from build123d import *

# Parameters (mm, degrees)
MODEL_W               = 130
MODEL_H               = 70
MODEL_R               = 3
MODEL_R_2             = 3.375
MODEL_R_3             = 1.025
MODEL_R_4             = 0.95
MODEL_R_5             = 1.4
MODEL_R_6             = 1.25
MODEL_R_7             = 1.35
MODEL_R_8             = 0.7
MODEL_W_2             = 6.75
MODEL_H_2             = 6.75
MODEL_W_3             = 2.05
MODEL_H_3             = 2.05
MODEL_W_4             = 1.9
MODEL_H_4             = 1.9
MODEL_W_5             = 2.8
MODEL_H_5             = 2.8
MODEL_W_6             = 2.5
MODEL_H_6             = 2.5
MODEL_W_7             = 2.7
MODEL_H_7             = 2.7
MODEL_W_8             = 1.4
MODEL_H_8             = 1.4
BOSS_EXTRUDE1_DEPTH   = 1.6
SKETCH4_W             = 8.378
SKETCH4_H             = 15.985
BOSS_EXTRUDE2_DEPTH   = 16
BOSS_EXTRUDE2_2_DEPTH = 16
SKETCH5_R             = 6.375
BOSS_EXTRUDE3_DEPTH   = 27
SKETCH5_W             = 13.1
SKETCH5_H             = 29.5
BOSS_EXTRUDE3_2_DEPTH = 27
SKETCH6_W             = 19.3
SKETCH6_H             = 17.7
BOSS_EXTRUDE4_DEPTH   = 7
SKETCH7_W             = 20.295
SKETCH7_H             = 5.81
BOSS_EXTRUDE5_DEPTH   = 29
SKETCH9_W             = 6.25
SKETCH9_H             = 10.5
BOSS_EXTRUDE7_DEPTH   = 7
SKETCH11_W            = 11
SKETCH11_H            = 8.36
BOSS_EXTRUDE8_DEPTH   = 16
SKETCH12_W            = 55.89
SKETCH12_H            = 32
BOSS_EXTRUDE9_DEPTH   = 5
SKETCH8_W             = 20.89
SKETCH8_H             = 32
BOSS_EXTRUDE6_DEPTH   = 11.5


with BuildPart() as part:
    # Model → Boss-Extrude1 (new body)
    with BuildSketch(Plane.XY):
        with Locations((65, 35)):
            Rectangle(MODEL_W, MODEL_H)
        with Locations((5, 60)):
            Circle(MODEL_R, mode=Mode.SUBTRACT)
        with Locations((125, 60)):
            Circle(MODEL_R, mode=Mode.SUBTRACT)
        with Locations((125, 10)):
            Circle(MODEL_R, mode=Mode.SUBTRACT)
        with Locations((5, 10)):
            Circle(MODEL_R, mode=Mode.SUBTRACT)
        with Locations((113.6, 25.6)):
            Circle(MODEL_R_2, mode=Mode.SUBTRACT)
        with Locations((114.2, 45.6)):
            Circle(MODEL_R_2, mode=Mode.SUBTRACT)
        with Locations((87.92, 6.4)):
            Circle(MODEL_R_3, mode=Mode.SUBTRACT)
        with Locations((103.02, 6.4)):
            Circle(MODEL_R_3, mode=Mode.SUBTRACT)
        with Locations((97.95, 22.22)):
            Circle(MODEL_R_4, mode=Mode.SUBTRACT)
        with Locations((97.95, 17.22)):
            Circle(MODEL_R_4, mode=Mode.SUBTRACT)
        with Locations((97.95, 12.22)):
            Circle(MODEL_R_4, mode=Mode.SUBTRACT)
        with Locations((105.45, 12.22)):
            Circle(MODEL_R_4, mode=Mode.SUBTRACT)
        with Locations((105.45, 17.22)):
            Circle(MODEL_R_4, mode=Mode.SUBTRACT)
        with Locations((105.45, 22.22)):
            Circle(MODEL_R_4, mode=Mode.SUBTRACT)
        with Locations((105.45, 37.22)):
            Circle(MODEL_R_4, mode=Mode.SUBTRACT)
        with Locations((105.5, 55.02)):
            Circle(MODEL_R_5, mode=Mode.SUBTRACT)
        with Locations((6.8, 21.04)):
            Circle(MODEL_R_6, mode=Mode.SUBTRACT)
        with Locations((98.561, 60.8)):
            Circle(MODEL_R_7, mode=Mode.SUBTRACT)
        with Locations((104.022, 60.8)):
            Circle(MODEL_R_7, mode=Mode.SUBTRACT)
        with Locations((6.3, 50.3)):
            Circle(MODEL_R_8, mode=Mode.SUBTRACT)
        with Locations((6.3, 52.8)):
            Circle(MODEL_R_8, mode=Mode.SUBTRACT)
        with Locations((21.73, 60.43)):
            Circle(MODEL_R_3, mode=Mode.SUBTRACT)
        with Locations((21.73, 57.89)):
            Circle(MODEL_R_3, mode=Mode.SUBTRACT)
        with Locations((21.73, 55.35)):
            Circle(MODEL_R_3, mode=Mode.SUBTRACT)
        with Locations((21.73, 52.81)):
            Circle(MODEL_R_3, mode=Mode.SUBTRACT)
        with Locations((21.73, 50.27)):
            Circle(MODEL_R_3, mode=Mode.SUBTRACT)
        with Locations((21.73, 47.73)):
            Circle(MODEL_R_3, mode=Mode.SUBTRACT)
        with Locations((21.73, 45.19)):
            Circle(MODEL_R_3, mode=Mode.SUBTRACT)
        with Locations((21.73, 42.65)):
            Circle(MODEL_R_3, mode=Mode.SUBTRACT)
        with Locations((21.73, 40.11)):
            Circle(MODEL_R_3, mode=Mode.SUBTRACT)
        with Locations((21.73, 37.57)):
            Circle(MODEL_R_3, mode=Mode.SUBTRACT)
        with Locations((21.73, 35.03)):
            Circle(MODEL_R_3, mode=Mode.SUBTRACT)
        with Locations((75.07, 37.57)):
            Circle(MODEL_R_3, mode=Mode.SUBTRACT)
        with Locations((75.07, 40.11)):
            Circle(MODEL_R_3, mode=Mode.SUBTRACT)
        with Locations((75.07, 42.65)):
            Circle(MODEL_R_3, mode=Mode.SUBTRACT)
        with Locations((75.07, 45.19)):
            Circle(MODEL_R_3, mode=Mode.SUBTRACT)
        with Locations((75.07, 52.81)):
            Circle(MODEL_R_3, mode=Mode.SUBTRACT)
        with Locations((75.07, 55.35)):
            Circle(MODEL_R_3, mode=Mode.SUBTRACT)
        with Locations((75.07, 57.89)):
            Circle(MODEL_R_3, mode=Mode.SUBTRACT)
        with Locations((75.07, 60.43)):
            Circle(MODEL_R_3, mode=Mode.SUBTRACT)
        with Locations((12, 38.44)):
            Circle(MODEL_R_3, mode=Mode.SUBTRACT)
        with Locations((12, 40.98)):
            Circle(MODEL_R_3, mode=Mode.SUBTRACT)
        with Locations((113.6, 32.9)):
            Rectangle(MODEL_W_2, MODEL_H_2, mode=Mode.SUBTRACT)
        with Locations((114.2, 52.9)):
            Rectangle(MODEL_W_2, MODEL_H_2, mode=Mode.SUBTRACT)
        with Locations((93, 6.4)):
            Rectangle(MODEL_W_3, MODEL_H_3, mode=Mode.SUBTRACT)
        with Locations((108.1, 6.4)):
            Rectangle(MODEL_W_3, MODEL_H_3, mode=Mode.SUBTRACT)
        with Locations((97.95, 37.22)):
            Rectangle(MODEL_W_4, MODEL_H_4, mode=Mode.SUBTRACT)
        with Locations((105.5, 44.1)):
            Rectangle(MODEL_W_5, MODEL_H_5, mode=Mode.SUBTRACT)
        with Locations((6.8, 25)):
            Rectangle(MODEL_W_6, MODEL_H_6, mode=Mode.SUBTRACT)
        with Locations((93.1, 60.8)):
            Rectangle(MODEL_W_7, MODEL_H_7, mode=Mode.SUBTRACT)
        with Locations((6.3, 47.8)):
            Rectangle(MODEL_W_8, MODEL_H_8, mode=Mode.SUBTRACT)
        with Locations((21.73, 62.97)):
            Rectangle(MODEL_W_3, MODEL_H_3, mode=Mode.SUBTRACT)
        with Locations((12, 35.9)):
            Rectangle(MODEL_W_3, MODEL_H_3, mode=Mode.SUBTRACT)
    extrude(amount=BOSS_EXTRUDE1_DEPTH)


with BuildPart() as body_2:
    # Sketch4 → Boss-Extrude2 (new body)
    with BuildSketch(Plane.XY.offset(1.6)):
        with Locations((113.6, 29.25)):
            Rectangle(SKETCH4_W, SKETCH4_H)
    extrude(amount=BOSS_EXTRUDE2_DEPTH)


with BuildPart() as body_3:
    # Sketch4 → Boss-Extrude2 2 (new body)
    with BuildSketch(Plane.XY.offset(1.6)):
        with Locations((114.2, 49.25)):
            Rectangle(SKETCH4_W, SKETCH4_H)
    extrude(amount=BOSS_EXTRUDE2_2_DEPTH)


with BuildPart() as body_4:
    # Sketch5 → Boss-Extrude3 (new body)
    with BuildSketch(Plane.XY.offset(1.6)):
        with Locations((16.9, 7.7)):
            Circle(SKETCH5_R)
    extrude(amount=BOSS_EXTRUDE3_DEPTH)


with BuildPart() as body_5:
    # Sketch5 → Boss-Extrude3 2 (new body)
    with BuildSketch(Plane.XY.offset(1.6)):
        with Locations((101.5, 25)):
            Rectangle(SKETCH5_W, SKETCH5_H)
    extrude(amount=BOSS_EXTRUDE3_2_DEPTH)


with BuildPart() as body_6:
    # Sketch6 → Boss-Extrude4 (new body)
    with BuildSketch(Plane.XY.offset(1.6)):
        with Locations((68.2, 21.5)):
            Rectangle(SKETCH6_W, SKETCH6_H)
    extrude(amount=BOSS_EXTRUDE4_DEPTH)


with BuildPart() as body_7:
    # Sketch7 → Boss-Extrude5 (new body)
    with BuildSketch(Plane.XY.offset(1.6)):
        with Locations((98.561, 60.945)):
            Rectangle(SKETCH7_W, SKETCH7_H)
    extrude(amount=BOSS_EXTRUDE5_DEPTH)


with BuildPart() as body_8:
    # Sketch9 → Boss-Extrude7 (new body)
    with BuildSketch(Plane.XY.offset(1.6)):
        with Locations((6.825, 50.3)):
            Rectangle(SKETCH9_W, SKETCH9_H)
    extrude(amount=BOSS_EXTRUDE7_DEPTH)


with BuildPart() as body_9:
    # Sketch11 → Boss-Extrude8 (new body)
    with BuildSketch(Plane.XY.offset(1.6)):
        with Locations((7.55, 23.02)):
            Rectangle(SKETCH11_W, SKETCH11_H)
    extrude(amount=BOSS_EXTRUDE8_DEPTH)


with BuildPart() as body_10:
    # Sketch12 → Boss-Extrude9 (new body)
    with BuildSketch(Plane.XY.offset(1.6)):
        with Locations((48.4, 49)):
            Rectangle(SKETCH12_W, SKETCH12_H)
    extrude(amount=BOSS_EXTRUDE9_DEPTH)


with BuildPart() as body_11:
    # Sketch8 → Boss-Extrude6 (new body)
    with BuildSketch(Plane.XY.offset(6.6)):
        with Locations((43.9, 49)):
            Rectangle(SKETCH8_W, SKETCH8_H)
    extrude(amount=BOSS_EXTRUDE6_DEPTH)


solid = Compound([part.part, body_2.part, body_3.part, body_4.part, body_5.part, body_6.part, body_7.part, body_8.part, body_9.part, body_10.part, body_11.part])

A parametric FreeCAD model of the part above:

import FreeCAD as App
import Part
import Sketcher

V = App.Vector

doc = App.newDocument("Part")
body = doc.addObject("PartDesign::Body", "Body")

sketch1 = doc.addObject("Sketcher::SketchObject", "Sketch")
body.addObject(sketch1)
sketch1.AttachmentSupport = (doc.XY_Plane, [""])
sketch1.MapMode = "FlatFace"
sketch1.addGeometry([
    Part.LineSegment(V(0, 70, 0), V(0, 0, 0)),
    Part.LineSegment(V(0, 0, 0), V(130, 0, 0)),
    Part.LineSegment(V(130, 0, 0), V(130, 70, 0)),
    Part.LineSegment(V(130, 70, 0), V(0, 70, 0)),
    Part.Circle(V(5, 10, 0), V(0, 0, 1), 3),
    Part.Circle(V(6.8, 21, 0), V(0, 0, 1), 1.2),
    Part.LineSegment(V(8.1, 23.8, 0), V(5.5, 23.8, 0)),
    Part.LineSegment(V(5.5, 23.8, 0), V(5.5, 26.2, 0)),
    Part.LineSegment(V(5.5, 26.2, 0), V(8.1, 26.2, 0)),
    Part.LineSegment(V(8.1, 26.2, 0), V(8.1, 23.8, 0)),
    Part.Circle(V(87.9, 6.4, 0), V(0, 0, 1), 1),
    Part.LineSegment(V(94, 5.4, 0), V(92, 5.4, 0)),
    Part.LineSegment(V(92, 5.4, 0), V(92, 7.4, 0)),
    Part.LineSegment(V(92, 7.4, 0), V(94, 7.4, 0)),
    Part.LineSegment(V(94, 7.4, 0), V(94, 5.4, 0)),
    Part.Circle(V(103, 6.4, 0), V(0, 0, 1), 1),
    Part.LineSegment(V(109.1, 5.4, 0), V(107.1, 5.4, 0)),
    Part.LineSegment(V(107.1, 5.4, 0), V(107.1, 7.4, 0)),
    Part.LineSegment(V(107.1, 7.4, 0), V(109.1, 7.4, 0)),
    Part.LineSegment(V(109.1, 7.4, 0), V(109.1, 5.4, 0)),
    Part.Circle(V(98, 12.2, 0), V(0, 0, 1), 0.9),
    Part.Circle(V(105.5, 12.2, 0), V(0, 0, 1), 0.9),
    Part.Circle(V(125, 10, 0), V(0, 0, 1), 3),
    Part.Circle(V(98, 17.2, 0), V(0, 0, 1), 0.9),
    Part.Circle(V(105.5, 17.2, 0), V(0, 0, 1), 0.9),
    Part.Circle(V(98, 22.2, 0), V(0, 0, 1), 0.9),
    Part.Circle(V(105.5, 22.2, 0), V(0, 0, 1), 0.9),
    Part.Circle(V(113.6, 25.6, 0), V(0, 0, 1), 3.4),
    Part.LineSegment(V(117, 29.5, 0), V(110.2, 29.5, 0)),
    Part.LineSegment(V(110.2, 29.5, 0), V(110.2, 36.3, 0)),
    Part.LineSegment(V(110.2, 36.3, 0), V(117, 36.3, 0)),
    Part.LineSegment(V(117, 36.3, 0), V(117, 29.5, 0)),
    Part.LineSegment(V(13, 34.9, 0), V(11, 34.9, 0)),
    Part.LineSegment(V(11, 34.9, 0), V(11, 36.9, 0)),
    Part.LineSegment(V(11, 36.9, 0), V(13, 36.9, 0)),
    Part.LineSegment(V(13, 36.9, 0), V(13, 34.9, 0)),
    Part.Circle(V(12, 38.4, 0), V(0, 0, 1), 1),
    Part.Circle(V(12, 41, 0), V(0, 0, 1), 1),
    Part.Circle(V(21.7, 35, 0), V(0, 0, 1), 1),
    Part.Circle(V(21.7, 37.6, 0), V(0, 0, 1), 1),
    Part.Circle(V(21.7, 40.1, 0), V(0, 0, 1), 1),
    Part.LineSegment(V(7, 47.1, 0), V(5.6, 47.1, 0)),
    Part.LineSegment(V(5.6, 47.1, 0), V(5.6, 48.5, 0)),
    Part.LineSegment(V(5.6, 48.5, 0), V(7, 48.5, 0)),
    Part.LineSegment(V(7, 48.5, 0), V(7, 47.1, 0)),
    Part.Circle(V(21.7, 42.6, 0), V(0, 0, 1), 1),
    Part.Circle(V(21.7, 45.2, 0), V(0, 0, 1), 1),
    Part.Circle(V(21.7, 47.7, 0), V(0, 0, 1), 1),
    Part.Circle(V(6.3, 50.3, 0), V(0, 0, 1), 0.7),
    Part.Circle(V(6.3, 52.8, 0), V(0, 0, 1), 0.7),
    Part.Circle(V(21.7, 50.3, 0), V(0, 0, 1), 1),
    Part.Circle(V(21.7, 52.8, 0), V(0, 0, 1), 1),
    Part.Circle(V(21.7, 55.4, 0), V(0, 0, 1), 1),
    Part.Circle(V(5, 60, 0), V(0, 0, 1), 3),
    Part.Circle(V(21.7, 57.9, 0), V(0, 0, 1), 1),
    Part.Circle(V(21.7, 60.4, 0), V(0, 0, 1), 1),
    Part.LineSegment(V(22.8, 61.9, 0), V(20.7, 61.9, 0)),
    Part.LineSegment(V(20.7, 61.9, 0), V(20.7, 64, 0)),
    Part.LineSegment(V(20.7, 64, 0), V(22.8, 64, 0)),
    Part.LineSegment(V(22.8, 64, 0), V(22.8, 61.9, 0)),
    Part.Circle(V(75.1, 37.6, 0), V(0, 0, 1), 1),
    Part.Circle(V(75.1, 40.1, 0), V(0, 0, 1), 1),
    Part.Circle(V(75.1, 42.6, 0), V(0, 0, 1), 1),
    Part.Circle(V(75.1, 45.2, 0), V(0, 0, 1), 1),
    Part.LineSegment(V(98.9, 36.3, 0), V(97, 36.3, 0)),
    Part.LineSegment(V(97, 36.3, 0), V(97, 38.2, 0)),
    Part.LineSegment(V(97, 38.2, 0), V(98.9, 38.2, 0)),
    Part.LineSegment(V(98.9, 38.2, 0), V(98.9, 36.3, 0)),
    Part.Circle(V(105.5, 37.2, 0), V(0, 0, 1), 0.9),
    Part.LineSegment(V(106.9, 42.7, 0), V(104.1, 42.7, 0)),
    Part.LineSegment(V(104.1, 42.7, 0), V(104.1, 45.5, 0)),
    Part.LineSegment(V(104.1, 45.5, 0), V(106.9, 45.5, 0)),
    Part.LineSegment(V(106.9, 45.5, 0), V(106.9, 42.7, 0)),
    Part.Circle(V(114.2, 45.6, 0), V(0, 0, 1), 3.4),
    Part.Circle(V(75.1, 52.8, 0), V(0, 0, 1), 1),
    Part.Circle(V(75.1, 55.4, 0), V(0, 0, 1), 1),
    Part.Circle(V(75.1, 57.9, 0), V(0, 0, 1), 1),
    Part.Circle(V(75.1, 60.4, 0), V(0, 0, 1), 1),
    Part.LineSegment(V(94.5, 59.5, 0), V(91.8, 59.5, 0)),
    Part.LineSegment(V(91.8, 59.5, 0), V(91.8, 62.1, 0)),
    Part.LineSegment(V(91.8, 62.1, 0), V(94.5, 62.1, 0)),
    Part.LineSegment(V(94.5, 62.1, 0), V(94.5, 59.5, 0)),
    Part.Circle(V(105.5, 55, 0), V(0, 0, 1), 1.4),
    Part.LineSegment(V(117.6, 49.5, 0), V(110.8, 49.5, 0)),
    Part.LineSegment(V(110.8, 49.5, 0), V(110.8, 56.3, 0)),
    Part.LineSegment(V(110.8, 56.3, 0), V(117.6, 56.3, 0)),
    Part.LineSegment(V(117.6, 56.3, 0), V(117.6, 49.5, 0)),
    Part.Circle(V(98.6, 60.8, 0), V(0, 0, 1), 1.4),
    Part.Circle(V(104, 60.8, 0), V(0, 0, 1), 1.4),
    Part.Circle(V(125, 60, 0), V(0, 0, 1), 3),
], False)
sketch1.addConstraint([
    Sketcher.Constraint("Coincident", 0, 2, 1, 1),
    Sketcher.Constraint("Coincident", 1, 2, 2, 1),
    Sketcher.Constraint("Coincident", 2, 2, 3, 1),
    Sketcher.Constraint("Coincident", 3, 2, 0, 1),
    Sketcher.Constraint("Coincident", 6, 2, 7, 1),
    Sketcher.Constraint("Coincident", 7, 2, 8, 1),
    Sketcher.Constraint("Coincident", 8, 2, 9, 1),
    Sketcher.Constraint("Coincident", 9, 2, 6, 1),
    Sketcher.Constraint("Coincident", 11, 2, 12, 1),
    Sketcher.Constraint("Coincident", 12, 2, 13, 1),
    Sketcher.Constraint("Coincident", 13, 2, 14, 1),
    Sketcher.Constraint("Coincident", 14, 2, 11, 1),
    Sketcher.Constraint("Coincident", 16, 2, 17, 1),
    Sketcher.Constraint("Coincident", 17, 2, 18, 1),
    Sketcher.Constraint("Coincident", 18, 2, 19, 1),
    Sketcher.Constraint("Coincident", 19, 2, 16, 1),
    Sketcher.Constraint("Coincident", 28, 2, 29, 1),
    Sketcher.Constraint("Coincident", 29, 2, 30, 1),
    Sketcher.Constraint("Coincident", 30, 2, 31, 1),
    Sketcher.Constraint("Coincident", 31, 2, 28, 1),
    Sketcher.Constraint("Coincident", 32, 2, 33, 1),
    Sketcher.Constraint("Coincident", 33, 2, 34, 1),
    Sketcher.Constraint("Coincident", 34, 2, 35, 1),
    Sketcher.Constraint("Coincident", 35, 2, 32, 1),
    Sketcher.Constraint("Coincident", 41, 2, 42, 1),
    Sketcher.Constraint("Coincident", 42, 2, 43, 1),
    Sketcher.Constraint("Coincident", 43, 2, 44, 1),
    Sketcher.Constraint("Coincident", 44, 2, 41, 1),
    Sketcher.Constraint("Coincident", 56, 2, 57, 1),
    Sketcher.Constraint("Coincident", 57, 2, 58, 1),
    Sketcher.Constraint("Coincident", 58, 2, 59, 1),
    Sketcher.Constraint("Coincident", 59, 2, 56, 1),
    Sketcher.Constraint("Coincident", 64, 2, 65, 1),
    Sketcher.Constraint("Coincident", 65, 2, 66, 1),
    Sketcher.Constraint("Coincident", 66, 2, 67, 1),
    Sketcher.Constraint("Coincident", 67, 2, 64, 1),
    Sketcher.Constraint("Coincident", 69, 2, 70, 1),
    Sketcher.Constraint("Coincident", 70, 2, 71, 1),
    Sketcher.Constraint("Coincident", 71, 2, 72, 1),
    Sketcher.Constraint("Coincident", 72, 2, 69, 1),
    Sketcher.Constraint("Coincident", 78, 2, 79, 1),
    Sketcher.Constraint("Coincident", 79, 2, 80, 1),
    Sketcher.Constraint("Coincident", 80, 2, 81, 1),
    Sketcher.Constraint("Coincident", 81, 2, 78, 1),
    Sketcher.Constraint("Coincident", 83, 2, 84, 1),
    Sketcher.Constraint("Coincident", 84, 2, 85, 1),
    Sketcher.Constraint("Coincident", 85, 2, 86, 1),
    Sketcher.Constraint("Coincident", 86, 2, 83, 1),
    Sketcher.Constraint("Vertical", 0),
    Sketcher.Constraint("Horizontal", 1),
    Sketcher.Constraint("Vertical", 2),
    Sketcher.Constraint("Horizontal", 3),
    Sketcher.Constraint("Horizontal", 6),
    Sketcher.Constraint("Vertical", 7),
    Sketcher.Constraint("Horizontal", 8),
    Sketcher.Constraint("Vertical", 9),
    Sketcher.Constraint("Horizontal", 11),
    Sketcher.Constraint("Vertical", 12),
    Sketcher.Constraint("Horizontal", 13),
    Sketcher.Constraint("Vertical", 14),
    Sketcher.Constraint("Horizontal", 16),
    Sketcher.Constraint("Vertical", 17),
    Sketcher.Constraint("Horizontal", 18),
    Sketcher.Constraint("Vertical", 19),
    Sketcher.Constraint("Horizontal", 28),
    Sketcher.Constraint("Vertical", 29),
    Sketcher.Constraint("Horizontal", 30),
    Sketcher.Constraint("Vertical", 31),
    Sketcher.Constraint("Horizontal", 32),
    Sketcher.Constraint("Vertical", 33),
    Sketcher.Constraint("Horizontal", 34),
    Sketcher.Constraint("Vertical", 35),
    Sketcher.Constraint("Horizontal", 41),
    Sketcher.Constraint("Vertical", 42),
    Sketcher.Constraint("Horizontal", 43),
    Sketcher.Constraint("Vertical", 44),
    Sketcher.Constraint("Horizontal", 56),
    Sketcher.Constraint("Vertical", 57),
    Sketcher.Constraint("Horizontal", 58),
    Sketcher.Constraint("Vertical", 59),
    Sketcher.Constraint("Horizontal", 64),
    Sketcher.Constraint("Vertical", 65),
    Sketcher.Constraint("Horizontal", 66),
    Sketcher.Constraint("Vertical", 67),
    Sketcher.Constraint("Horizontal", 69),
    Sketcher.Constraint("Vertical", 70),
    Sketcher.Constraint("Horizontal", 71),
    Sketcher.Constraint("Vertical", 72),
    Sketcher.Constraint("Horizontal", 78),
    Sketcher.Constraint("Vertical", 79),
    Sketcher.Constraint("Horizontal", 80),
    Sketcher.Constraint("Vertical", 81),
    Sketcher.Constraint("Horizontal", 83),
    Sketcher.Constraint("Vertical", 84),
    Sketcher.Constraint("Horizontal", 85),
    Sketcher.Constraint("Vertical", 86),
    Sketcher.Constraint("Coincident", 0, 2, -1, 1),
    Sketcher.Constraint("Equal", 10, 15),
    Sketcher.Constraint("Equal", 20, 21),
    Sketcher.Constraint("Equal", 4, 22),
    Sketcher.Constraint("Equal", 21, 23),
    Sketcher.Constraint("Equal", 23, 24),
    Sketcher.Constraint("Equal", 24, 25),
    Sketcher.Constraint("Equal", 25, 26),
    Sketcher.Constraint("Equal", 15, 36),
    Sketcher.Constraint("Equal", 36, 37),
    Sketcher.Constraint("Equal", 37, 38),
    Sketcher.Constraint("Equal", 38, 39),
    Sketcher.Constraint("Equal", 39, 40),
    Sketcher.Constraint("Equal", 40, 45),
    Sketcher.Constraint("Equal", 45, 46),
    Sketcher.Constraint("Equal", 46, 47),
    Sketcher.Constraint("Equal", 48, 49),
    Sketcher.Constraint("Equal", 47, 50),
    Sketcher.Constraint("Equal", 50, 51),
    Sketcher.Constraint("Equal", 51, 52),
    Sketcher.Constraint("Equal", 22, 53),
    Sketcher.Constraint("Equal", 52, 54),
    Sketcher.Constraint("Equal", 54, 55),
    Sketcher.Constraint("Equal", 55, 60),
    Sketcher.Constraint("Equal", 60, 61),
    Sketcher.Constraint("Equal", 61, 62),
    Sketcher.Constraint("Equal", 62, 63),
    Sketcher.Constraint("Equal", 26, 68),
    Sketcher.Constraint("Equal", 27, 73),
    Sketcher.Constraint("Equal", 63, 74),
    Sketcher.Constraint("Equal", 74, 75),
    Sketcher.Constraint("Equal", 75, 76),
    Sketcher.Constraint("Equal", 76, 77),
    Sketcher.Constraint("Equal", 87, 88),
    Sketcher.Constraint("Equal", 53, 89),
    Sketcher.Constraint("Horizontal", 10, 3, 15, 3),
    Sketcher.Constraint("Horizontal", 20, 3, 21, 3),
    Sketcher.Constraint("Horizontal", 4, 3, 22, 3),
    Sketcher.Constraint("Horizontal", 23, 3, 24, 3),
    Sketcher.Constraint("Horizontal", 25, 3, 26, 3),
    Sketcher.Constraint("Horizontal", 39, 3, 60, 3),
    Sketcher.Constraint("Horizontal", 40, 3, 61, 3),
    Sketcher.Constraint("Horizontal", 45, 3, 62, 3),
    Sketcher.Constraint("Horizontal", 46, 3, 63, 3),
    Sketcher.Constraint("Horizontal", 51, 3, 74, 3),
    Sketcher.Constraint("Horizontal", 52, 3, 75, 3),
    Sketcher.Constraint("Horizontal", 54, 3, 76, 3),
    Sketcher.Constraint("Horizontal", 55, 3, 77, 3),
    Sketcher.Constraint("Horizontal", 87, 3, 88, 3),
    Sketcher.Constraint("Horizontal", 53, 3, 89, 3),
    Sketcher.Constraint("Horizontal", 14, 2, 16, 2),
    Sketcher.Constraint("Horizontal", 13, 2, 17, 2),
    Sketcher.Constraint("Vertical", 20, 3, 23, 3),
    Sketcher.Constraint("Vertical", 21, 3, 24, 3),
    Sketcher.Constraint("Vertical", 23, 3, 25, 3),
    Sketcher.Constraint("Vertical", 24, 3, 26, 3),
    Sketcher.Constraint("Vertical", 36, 3, 37, 3),
    Sketcher.Constraint("Vertical", 38, 3, 39, 3),
    Sketcher.Constraint("Vertical", 39, 3, 40, 3),
    Sketcher.Constraint("Vertical", 40, 3, 45, 3),
    Sketcher.Constraint("Vertical", 45, 3, 46, 3),
    Sketcher.Constraint("Vertical", 46, 3, 47, 3),
    Sketcher.Constraint("Vertical", 48, 3, 49, 3),
    Sketcher.Constraint("Vertical", 47, 3, 50, 3),
    Sketcher.Constraint("Vertical", 50, 3, 51, 3),
    Sketcher.Constraint("Vertical", 51, 3, 52, 3),
    Sketcher.Constraint("Vertical", 4, 3, 53, 3),
    Sketcher.Constraint("Vertical", 52, 3, 54, 3),
    Sketcher.Constraint("Vertical", 54, 3, 55, 3),
    Sketcher.Constraint("Vertical", 60, 3, 61, 3),
    Sketcher.Constraint("Vertical", 61, 3, 62, 3),
    Sketcher.Constraint("Vertical", 62, 3, 63, 3),
    Sketcher.Constraint("Vertical", 26, 3, 68, 3),
    Sketcher.Constraint("Vertical", 63, 3, 74, 3),
    Sketcher.Constraint("Vertical", 74, 3, 75, 3),
    Sketcher.Constraint("Vertical", 75, 3, 76, 3),
    Sketcher.Constraint("Vertical", 76, 3, 77, 3),
    Sketcher.Constraint("Vertical", 22, 3, 89, 3),
    Sketcher.Constraint("Equal", 13, 16),
    Sketcher.Constraint("Equal", 18, 32),
    Sketcher.Constraint("Equal", 34, 56),
    Sketcher.Constraint("Equal", 30, 83),
    Sketcher.Constraint("Equal", 8, 7),
    Sketcher.Constraint("Equal", 58, 12),
    Sketcher.Constraint("Equal", 85, 29),
    Sketcher.Constraint("Equal", 19, 33),
    Sketcher.Constraint("Equal", 43, 42),
    Sketcher.Constraint("Equal", 35, 57),
    Sketcher.Constraint("Equal", 66, 65),
    Sketcher.Constraint("Equal", 71, 70),
    Sketcher.Constraint("Equal", 80, 79),
    Sketcher.Constraint("Equal", 31, 84),
    Sketcher.Constraint("Diameter", 4, 6.0),
    Sketcher.Constraint("Diameter", 5, 2.5),
    Sketcher.Constraint("Diameter", 20, 1.9),
    Sketcher.Constraint("Diameter", 48, 1.4),
    Sketcher.Constraint("Diameter", 82, 2.8),
    Sketcher.Constraint("Diameter", 87, 2.7),
    Sketcher.Constraint("Diameter", 10, 2.05),
    Sketcher.Constraint("Diameter", 27, 6.75),
    Sketcher.Constraint("DistanceX", 1, 1, 1, 2, 130.0),
    Sketcher.Constraint("DistanceY", 0, 2, 0, 1, 70.0),
    Sketcher.Constraint("DistanceX", 6, 2, 6, 1, 2.5),
    Sketcher.Constraint("DistanceX", 41, 2, 41, 1, 1.4),
    Sketcher.Constraint("DistanceX", 64, 2, 64, 1, 1.9),
    Sketcher.Constraint("DistanceX", 69, 2, 69, 1, 2.8),
    Sketcher.Constraint("DistanceX", 78, 2, 78, 1, 2.7),
    Sketcher.Constraint("DistanceX", -1, 1, 4, 3, 5.0),
    Sketcher.Constraint("DistanceY", -1, 1, 4, 3, 10.0),
    Sketcher.Constraint("DistanceX", -1, 1, 22, 3, 125.0),
    Sketcher.Constraint("DistanceX", -1, 1, 36, 3, 12.0),
    Sketcher.Constraint("DistanceY", -1, 1, 53, 3, 60.0),
    Sketcher.Constraint("DistanceX", -1, 1, 43, 2, 7.0),
    Sketcher.Constraint("DistanceX", -1, 1, 64, 2, 97.0),
    Sketcher.Constraint("DistanceX", 11, 2, 11, 1, 2.05),
    Sketcher.Constraint("DistanceX", 28, 2, 28, 1, 6.75),
    Sketcher.Constraint("DistanceX", -1, 1, 5, 3, 6.8),
    Sketcher.Constraint("DistanceY", -1, 1, 10, 3, 6.4),
    Sketcher.Constraint("DistanceX", -1, 1, 27, 3, 113.6),
    Sketcher.Constraint("DistanceY", -1, 1, 27, 3, 25.6),
    Sketcher.Constraint("DistanceX", -1, 1, 48, 3, 6.3),
    Sketcher.Constraint("DistanceY", -1, 1, 48, 3, 50.3),
    Sketcher.Constraint("DistanceY", -1, 1, 49, 3, 52.8),
    Sketcher.Constraint("DistanceX", -1, 1, 73, 3, 114.2),
    Sketcher.Constraint("DistanceY", -1, 1, 73, 3, 45.6),
    Sketcher.Constraint("DistanceX", -1, 1, 82, 3, 105.5),
    Sketcher.Constraint("DistanceY", -1, 1, 87, 3, 60.8),
    Sketcher.Constraint("DistanceY", -1, 1, 41, 2, 47.1),
    Sketcher.Constraint("DistanceX", -1, 1, 69, 2, 104.1),
    Sketcher.Constraint("DistanceY", -1, 1, 69, 2, 42.7),
    Sketcher.Constraint("DistanceY", -1, 1, 5, 3, 21.04),
    Sketcher.Constraint("DistanceX", -1, 1, 10, 3, 87.92),
    Sketcher.Constraint("DistanceX", -1, 1, 15, 3, 103.02),
    Sketcher.Constraint("DistanceX", -1, 1, 20, 3, 97.95),
    Sketcher.Constraint("DistanceY", -1, 1, 20, 3, 12.22),
    Sketcher.Constraint("DistanceX", -1, 1, 21, 3, 105.45),
    Sketcher.Constraint("DistanceY", -1, 1, 23, 3, 17.22),
    Sketcher.Constraint("DistanceY", -1, 1, 25, 3, 22.22),
    Sketcher.Constraint("DistanceY", -1, 1, 36, 3, 38.44),
    Sketcher.Constraint("DistanceY", -1, 1, 37, 3, 40.98),
    Sketcher.Constraint("DistanceX", -1, 1, 38, 3, 21.73),
    Sketcher.Constraint("DistanceY", -1, 1, 38, 3, 35.03),
    Sketcher.Constraint("DistanceY", -1, 1, 39, 3, 37.57),
    Sketcher.Constraint("DistanceY", -1, 1, 40, 3, 40.11),
    Sketcher.Constraint("DistanceY", -1, 1, 45, 3, 42.65),
    Sketcher.Constraint("DistanceY", -1, 1, 46, 3, 45.19),
    Sketcher.Constraint("DistanceY", -1, 1, 47, 3, 47.73),
    Sketcher.Constraint("DistanceY", -1, 1, 50, 3, 50.27),
    Sketcher.Constraint("DistanceY", -1, 1, 51, 3, 52.81),
    Sketcher.Constraint("DistanceY", -1, 1, 52, 3, 55.35),
    Sketcher.Constraint("DistanceY", -1, 1, 54, 3, 57.89),
    Sketcher.Constraint("DistanceY", -1, 1, 55, 3, 60.43),
    Sketcher.Constraint("DistanceX", -1, 1, 60, 3, 75.07),
    Sketcher.Constraint("DistanceY", -1, 1, 68, 3, 37.22),
    Sketcher.Constraint("DistanceY", -1, 1, 82, 3, 55.02),
    Sketcher.Constraint("DistanceX", -1, 1, 6, 2, 5.55),
    Sketcher.Constraint("DistanceY", -1, 1, 6, 2, 23.75),
    Sketcher.Constraint("DistanceY", -1, 1, 64, 2, 36.27),
    Sketcher.Constraint("DistanceX", -1, 1, 78, 2, 91.75),
    Sketcher.Constraint("DistanceY", -1, 1, 78, 2, 59.45),
    Sketcher.Constraint("DistanceX", -1, 1, 87, 3, 98.561),
    Sketcher.Constraint("DistanceX", -1, 1, 88, 3, 104.022),
    Sketcher.Constraint("DistanceX", -1, 1, 11, 2, 91.975),
    Sketcher.Constraint("DistanceY", -1, 1, 11, 2, 5.375),
    Sketcher.Constraint("DistanceX", -1, 1, 16, 2, 107.075),
    Sketcher.Constraint("DistanceX", -1, 1, 28, 2, 110.225),
    Sketcher.Constraint("DistanceY", -1, 1, 28, 2, 29.525),
    Sketcher.Constraint("DistanceX", -1, 1, 32, 2, 10.975),
    Sketcher.Constraint("DistanceY", -1, 1, 32, 2, 34.875),
    Sketcher.Constraint("DistanceX", -1, 1, 56, 2, 20.705),
    Sketcher.Constraint("DistanceY", -1, 1, 56, 2, 61.945),
    Sketcher.Constraint("DistanceX", -1, 1, 83, 2, 110.825),
    Sketcher.Constraint("DistanceY", -1, 1, 83, 2, 49.525),
])
pad1 = doc.addObject("PartDesign::Pad", "Pad")
body.addObject(pad1)
pad1.Profile = sketch1
pad1.Length = 1.6
body2 = doc.addObject("PartDesign::Body", "Body001")

sketch2 = doc.addObject("Sketcher::SketchObject", "Sketch001")
body2.addObject(sketch2)
sketch2.AttachmentSupport = (doc.getObject("XY_Plane001"), [""])
sketch2.MapMode = "FlatFace"
sketch2.AttachmentOffset = App.Placement(V(0, 0, 1.6), App.Rotation())
sketch2.addGeometry([
    Part.LineSegment(V(109, 37, 0), V(109, 21, 0)),
    Part.LineSegment(V(109, 21, 0), V(118, 21, 0)),
    Part.LineSegment(V(118, 21, 0), V(118, 37, 0)),
    Part.LineSegment(V(118, 37, 0), V(109, 37, 0)),
], False)
sketch2.addConstraint([
    Sketcher.Constraint("Coincident", 0, 2, 1, 1),
    Sketcher.Constraint("Coincident", 1, 2, 2, 1),
    Sketcher.Constraint("Coincident", 2, 2, 3, 1),
    Sketcher.Constraint("Coincident", 3, 2, 0, 1),
    Sketcher.Constraint("Vertical", 0),
    Sketcher.Constraint("Horizontal", 1),
    Sketcher.Constraint("Vertical", 2),
    Sketcher.Constraint("Horizontal", 3),
    Sketcher.Constraint("DistanceX", 1, 1, 1, 2, 8.378),
    Sketcher.Constraint("DistanceY", 0, 2, 0, 1, 15.985),
    Sketcher.Constraint("DistanceX", -1, 1, 0, 2, 109.411),
    Sketcher.Constraint("DistanceY", -1, 1, 0, 2, 21.2575),
])
pad2 = doc.addObject("PartDesign::Pad", "Pad001")
body2.addObject(pad2)
pad2.Profile = sketch2
pad2.Length = 16
body3 = doc.addObject("PartDesign::Body", "Body002")

sketch3 = doc.addObject("Sketcher::SketchObject", "Sketch002")
body3.addObject(sketch3)
sketch3.AttachmentSupport = (doc.getObject("XY_Plane002"), [""])
sketch3.MapMode = "FlatFace"
sketch3.AttachmentOffset = App.Placement(V(0, 0, 1.6), App.Rotation())
sketch3.addGeometry([
    Part.LineSegment(V(110, 57, 0), V(110, 41, 0)),
    Part.LineSegment(V(110, 41, 0), V(118, 41, 0)),
    Part.LineSegment(V(118, 41, 0), V(118, 57, 0)),
    Part.LineSegment(V(118, 57, 0), V(110, 57, 0)),
], False)
sketch3.addConstraint([
    Sketcher.Constraint("Coincident", 0, 2, 1, 1),
    Sketcher.Constraint("Coincident", 1, 2, 2, 1),
    Sketcher.Constraint("Coincident", 2, 2, 3, 1),
    Sketcher.Constraint("Coincident", 3, 2, 0, 1),
    Sketcher.Constraint("Vertical", 0),
    Sketcher.Constraint("Horizontal", 1),
    Sketcher.Constraint("Vertical", 2),
    Sketcher.Constraint("Horizontal", 3),
    Sketcher.Constraint("DistanceX", 1, 1, 1, 2, 8.378),
    Sketcher.Constraint("DistanceY", 0, 2, 0, 1, 15.985),
    Sketcher.Constraint("DistanceX", -1, 1, 0, 2, 110.011),
    Sketcher.Constraint("DistanceY", -1, 1, 0, 2, 41.2575),
])
pad3 = doc.addObject("PartDesign::Pad", "Pad002")
body3.addObject(pad3)
pad3.Profile = sketch3
pad3.Length = 16
body4 = doc.addObject("PartDesign::Body", "Body003")

sketch4 = doc.addObject("Sketcher::SketchObject", "Sketch003")
body4.addObject(sketch4)
sketch4.AttachmentSupport = (doc.getObject("XY_Plane003"), [""])
sketch4.MapMode = "FlatFace"
sketch4.AttachmentOffset = App.Placement(V(0, 0, 1.6), App.Rotation())
sketch4.addGeometry(Part.Circle(V(17, 8, 0), V(0, 0, 1), 6), False)
sketch4.addConstraint([
    Sketcher.Constraint("Diameter", 0, 12.75),
    Sketcher.Constraint("DistanceX", -1, 1, 0, 3, 16.9),
    Sketcher.Constraint("DistanceY", -1, 1, 0, 3, 7.7),
])
pad4 = doc.addObject("PartDesign::Pad", "Pad003")
body4.addObject(pad4)
pad4.Profile = sketch4
pad4.Length = 27
body5 = doc.addObject("PartDesign::Body", "Body004")

sketch5 = doc.addObject("Sketcher::SketchObject", "Sketch004")
body5.addObject(sketch5)
sketch5.AttachmentSupport = (doc.getObject("XY_Plane004"), [""])
sketch5.MapMode = "FlatFace"
sketch5.AttachmentOffset = App.Placement(V(0, 0, 1.6), App.Rotation())
sketch5.addGeometry([
    Part.LineSegment(V(95, 40, 0), V(95, 10, 0)),
    Part.LineSegment(V(95, 10, 0), V(108, 10, 0)),
    Part.LineSegment(V(108, 10, 0), V(108, 40, 0)),
    Part.LineSegment(V(108, 40, 0), V(95, 40, 0)),
], False)
sketch5.addConstraint([
    Sketcher.Constraint("Coincident", 0, 2, 1, 1),
    Sketcher.Constraint("Coincident", 1, 2, 2, 1),
    Sketcher.Constraint("Coincident", 2, 2, 3, 1),
    Sketcher.Constraint("Coincident", 3, 2, 0, 1),
    Sketcher.Constraint("Vertical", 0),
    Sketcher.Constraint("Horizontal", 1),
    Sketcher.Constraint("Vertical", 2),
    Sketcher.Constraint("Horizontal", 3),
    Sketcher.Constraint("DistanceX", 1, 1, 1, 2, 13.1),
    Sketcher.Constraint("DistanceY", 0, 2, 0, 1, 29.5),
    Sketcher.Constraint("DistanceX", -1, 1, 0, 2, 94.95),
    Sketcher.Constraint("DistanceY", -1, 1, 0, 2, 10.25),
])
pad5 = doc.addObject("PartDesign::Pad", "Pad004")
body5.addObject(pad5)
pad5.Profile = sketch5
pad5.Length = 27
body6 = doc.addObject("PartDesign::Body", "Body005")

sketch6 = doc.addObject("Sketcher::SketchObject", "Sketch005")
body6.addObject(sketch6)
sketch6.AttachmentSupport = (doc.getObject("XY_Plane005"), [""])
sketch6.MapMode = "FlatFace"
sketch6.AttachmentOffset = App.Placement(V(0, 0, 1.6), App.Rotation())
sketch6.addGeometry([
    Part.LineSegment(V(59, 30, 0), V(59, 13, 0)),
    Part.LineSegment(V(59, 13, 0), V(78, 13, 0)),
    Part.LineSegment(V(78, 13, 0), V(78, 30, 0)),
    Part.LineSegment(V(78, 30, 0), V(59, 30, 0)),
], False)
sketch6.addConstraint([
    Sketcher.Constraint("Coincident", 0, 2, 1, 1),
    Sketcher.Constraint("Coincident", 1, 2, 2, 1),
    Sketcher.Constraint("Coincident", 2, 2, 3, 1),
    Sketcher.Constraint("Coincident", 3, 2, 0, 1),
    Sketcher.Constraint("Vertical", 0),
    Sketcher.Constraint("Horizontal", 1),
    Sketcher.Constraint("Vertical", 2),
    Sketcher.Constraint("Horizontal", 3),
    Sketcher.Constraint("DistanceX", 1, 1, 1, 2, 19.3),
    Sketcher.Constraint("DistanceY", 0, 2, 0, 1, 17.7),
    Sketcher.Constraint("DistanceX", -1, 1, 0, 2, 58.55),
    Sketcher.Constraint("DistanceY", -1, 1, 0, 2, 12.65),
])
pad6 = doc.addObject("PartDesign::Pad", "Pad005")
body6.addObject(pad6)
pad6.Profile = sketch6
pad6.Length = 7
body7 = doc.addObject("PartDesign::Body", "Body006")

sketch7 = doc.addObject("Sketcher::SketchObject", "Sketch006")
body7.addObject(sketch7)
sketch7.AttachmentSupport = (doc.getObject("XY_Plane006"), [""])
sketch7.MapMode = "FlatFace"
sketch7.AttachmentOffset = App.Placement(V(0, 0, 1.6), App.Rotation())
sketch7.addGeometry([
    Part.LineSegment(V(88, 64, 0), V(88, 58, 0)),
    Part.LineSegment(V(88, 58, 0), V(109, 58, 0)),
    Part.LineSegment(V(109, 58, 0), V(109, 64, 0)),
    Part.LineSegment(V(109, 64, 0), V(88, 64, 0)),
], False)
sketch7.addConstraint([
    Sketcher.Constraint("Coincident", 0, 2, 1, 1),
    Sketcher.Constraint("Coincident", 1, 2, 2, 1),
    Sketcher.Constraint("Coincident", 2, 2, 3, 1),
    Sketcher.Constraint("Coincident", 3, 2, 0, 1),
    Sketcher.Constraint("Vertical", 0),
    Sketcher.Constraint("Horizontal", 1),
    Sketcher.Constraint("Vertical", 2),
    Sketcher.Constraint("Horizontal", 3),
    Sketcher.Constraint("DistanceY", 0, 2, 0, 1, 5.81),
    Sketcher.Constraint("DistanceX", 1, 1, 1, 2, 20.295),
    Sketcher.Constraint("DistanceY", -1, 1, 0, 2, 58.04),
    Sketcher.Constraint("DistanceX", -1, 1, 0, 2, 88.4135),
])
pad7 = doc.addObject("PartDesign::Pad", "Pad006")
body7.addObject(pad7)
pad7.Profile = sketch7
pad7.Length = 29
body8 = doc.addObject("PartDesign::Body", "Body007")

sketch8 = doc.addObject("Sketcher::SketchObject", "Sketch007")
body8.addObject(sketch8)
sketch8.AttachmentSupport = (doc.getObject("XY_Plane007"), [""])
sketch8.MapMode = "FlatFace"
sketch8.AttachmentOffset = App.Placement(V(0, 0, 1.6), App.Rotation())
sketch8.addGeometry([
    Part.LineSegment(V(4, 56, 0), V(4, 45, 0)),
    Part.LineSegment(V(4, 45, 0), V(10, 45, 0)),
    Part.LineSegment(V(10, 45, 0), V(10, 56, 0)),
    Part.LineSegment(V(10, 56, 0), V(4, 56, 0)),
], False)
sketch8.addConstraint([
    Sketcher.Constraint("Coincident", 0, 2, 1, 1),
    Sketcher.Constraint("Coincident", 1, 2, 2, 1),
    Sketcher.Constraint("Coincident", 2, 2, 3, 1),
    Sketcher.Constraint("Coincident", 3, 2, 0, 1),
    Sketcher.Constraint("Vertical", 0),
    Sketcher.Constraint("Horizontal", 1),
    Sketcher.Constraint("Vertical", 2),
    Sketcher.Constraint("Horizontal", 3),
    Sketcher.Constraint("DistanceY", 0, 2, 0, 1, 10.5),
    Sketcher.Constraint("DistanceX", 1, 1, 1, 2, 6.25),
    Sketcher.Constraint("DistanceX", -1, 1, 0, 2, 3.7),
    Sketcher.Constraint("DistanceY", -1, 1, 0, 2, 45.05),
])
pad8 = doc.addObject("PartDesign::Pad", "Pad007")
body8.addObject(pad8)
pad8.Profile = sketch8
pad8.Length = 7
body9 = doc.addObject("PartDesign::Body", "Body008")

sketch9 = doc.addObject("Sketcher::SketchObject", "Sketch008")
body9.addObject(sketch9)
sketch9.AttachmentSupport = (doc.getObject("XY_Plane008"), [""])
sketch9.MapMode = "FlatFace"
sketch9.AttachmentOffset = App.Placement(V(0, 0, 1.6), App.Rotation())
sketch9.addGeometry([
    Part.LineSegment(V(2, 27, 0), V(2, 19, 0)),
    Part.LineSegment(V(2, 19, 0), V(13, 19, 0)),
    Part.LineSegment(V(13, 19, 0), V(13, 27, 0)),
    Part.LineSegment(V(13, 27, 0), V(2, 27, 0)),
], False)
sketch9.addConstraint([
    Sketcher.Constraint("Coincident", 0, 2, 1, 1),
    Sketcher.Constraint("Coincident", 1, 2, 2, 1),
    Sketcher.Constraint("Coincident", 2, 2, 3, 1),
    Sketcher.Constraint("Coincident", 3, 2, 0, 1),
    Sketcher.Constraint("Vertical", 0),
    Sketcher.Constraint("Horizontal", 1),
    Sketcher.Constraint("Vertical", 2),
    Sketcher.Constraint("Horizontal", 3),
    Sketcher.Constraint("DistanceX", 1, 1, 1, 2, 11.0),
    Sketcher.Constraint("DistanceY", 0, 2, 0, 1, 8.36),
    Sketcher.Constraint("DistanceY", -1, 1, 2, 2, 27.2),
    Sketcher.Constraint("DistanceX", -1, 1, 0, 2, 2.05),
])
pad9 = doc.addObject("PartDesign::Pad", "Pad008")
body9.addObject(pad9)
pad9.Profile = sketch9
pad9.Length = 16
body10 = doc.addObject("PartDesign::Body", "Body009")

sketch10 = doc.addObject("Sketcher::SketchObject", "Sketch009")
body10.addObject(sketch10)
sketch10.AttachmentSupport = (doc.getObject("XY_Plane009"), [""])
sketch10.MapMode = "FlatFace"
sketch10.AttachmentOffset = App.Placement(V(0, 0, 1.6), App.Rotation())
sketch10.addGeometry([
    Part.LineSegment(V(20, 65, 0), V(20, 33, 0)),
    Part.LineSegment(V(20, 33, 0), V(76, 33, 0)),
    Part.LineSegment(V(76, 33, 0), V(76, 65, 0)),
    Part.LineSegment(V(76, 65, 0), V(20, 65, 0)),
], False)
sketch10.addConstraint([
    Sketcher.Constraint("Coincident", 0, 2, 1, 1),
    Sketcher.Constraint("Coincident", 1, 2, 2, 1),
    Sketcher.Constraint("Coincident", 2, 2, 3, 1),
    Sketcher.Constraint("Coincident", 3, 2, 0, 1),
    Sketcher.Constraint("Vertical", 0),
    Sketcher.Constraint("Horizontal", 1),
    Sketcher.Constraint("Vertical", 2),
    Sketcher.Constraint("Horizontal", 3),
    Sketcher.Constraint("DistanceY", 0, 2, 0, 1, 32.0),
    Sketcher.Constraint("DistanceY", -1, 1, 0, 2, 33.0),
    Sketcher.Constraint("DistanceX", 1, 1, 1, 2, 55.89),
    Sketcher.Constraint("DistanceX", -1, 1, 0, 2, 20.455),
])
pad10 = doc.addObject("PartDesign::Pad", "Pad009")
body10.addObject(pad10)
pad10.Profile = sketch10
pad10.Length = 5
body11 = doc.addObject("PartDesign::Body", "Body010")

sketch11 = doc.addObject("Sketcher::SketchObject", "Sketch010")
body11.addObject(sketch11)
sketch11.AttachmentSupport = (doc.getObject("XY_Plane010"), [""])
sketch11.MapMode = "FlatFace"
sketch11.AttachmentOffset = App.Placement(V(0, 0, 6.6), App.Rotation())
sketch11.addGeometry([
    Part.LineSegment(V(33, 65, 0), V(33, 33, 0)),
    Part.LineSegment(V(33, 33, 0), V(54, 33, 0)),
    Part.LineSegment(V(54, 33, 0), V(54, 65, 0)),
    Part.LineSegment(V(54, 65, 0), V(33, 65, 0)),
], False)
sketch11.addConstraint([
    Sketcher.Constraint("Coincident", 0, 2, 1, 1),
    Sketcher.Constraint("Coincident", 1, 2, 2, 1),
    Sketcher.Constraint("Coincident", 2, 2, 3, 1),
    Sketcher.Constraint("Coincident", 3, 2, 0, 1),
    Sketcher.Constraint("Vertical", 0),
    Sketcher.Constraint("Horizontal", 1),
    Sketcher.Constraint("Vertical", 2),
    Sketcher.Constraint("Horizontal", 3),
    Sketcher.Constraint("DistanceY", 0, 2, 0, 1, 32.0),
    Sketcher.Constraint("DistanceY", -1, 1, 0, 2, 33.0),
    Sketcher.Constraint("DistanceX", 1, 1, 1, 2, 20.89),
    Sketcher.Constraint("DistanceX", -1, 1, 0, 2, 33.455),
])
pad11 = doc.addObject("PartDesign::Pad", "Pad010")
body11.addObject(pad11)
pad11.Profile = sketch11
pad11.Length = 11.5

doc.recompute()
